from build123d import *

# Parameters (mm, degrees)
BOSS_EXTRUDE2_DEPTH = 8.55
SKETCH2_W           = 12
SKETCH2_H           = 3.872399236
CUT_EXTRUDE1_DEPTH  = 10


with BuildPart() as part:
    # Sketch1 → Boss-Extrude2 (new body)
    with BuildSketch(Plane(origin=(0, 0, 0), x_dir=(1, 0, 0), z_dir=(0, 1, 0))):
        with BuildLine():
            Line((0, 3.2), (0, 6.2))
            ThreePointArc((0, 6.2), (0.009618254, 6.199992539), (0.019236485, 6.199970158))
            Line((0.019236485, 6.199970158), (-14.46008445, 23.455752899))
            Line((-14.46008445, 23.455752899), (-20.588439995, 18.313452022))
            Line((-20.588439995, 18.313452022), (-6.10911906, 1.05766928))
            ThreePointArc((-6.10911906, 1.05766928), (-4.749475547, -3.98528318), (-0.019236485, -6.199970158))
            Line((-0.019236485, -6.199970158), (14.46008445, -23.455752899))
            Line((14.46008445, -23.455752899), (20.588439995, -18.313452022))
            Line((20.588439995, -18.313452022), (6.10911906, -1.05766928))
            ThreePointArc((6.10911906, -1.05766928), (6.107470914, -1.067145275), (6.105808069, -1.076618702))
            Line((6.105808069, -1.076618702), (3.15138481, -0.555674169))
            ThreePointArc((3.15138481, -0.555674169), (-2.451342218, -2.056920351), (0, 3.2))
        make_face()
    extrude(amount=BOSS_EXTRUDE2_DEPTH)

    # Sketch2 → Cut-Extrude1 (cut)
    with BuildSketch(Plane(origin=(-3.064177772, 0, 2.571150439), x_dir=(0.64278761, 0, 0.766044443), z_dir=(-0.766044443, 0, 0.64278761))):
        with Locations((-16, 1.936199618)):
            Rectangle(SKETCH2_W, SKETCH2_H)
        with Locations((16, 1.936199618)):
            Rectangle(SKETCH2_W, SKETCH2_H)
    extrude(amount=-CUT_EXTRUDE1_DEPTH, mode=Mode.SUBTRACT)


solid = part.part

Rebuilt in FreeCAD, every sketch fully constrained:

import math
import FreeCAD as App
import Part
import Sketcher

V = App.Vector
Q = App.Units.Quantity


def add_polygon(sketch, points):
    """Adds a closed chain of lines whose ends are joined by coincident constraints."""
    first, n = sketch.GeometryCount, len(points)
    for a, b in zip(points, points[1:] + points[:1]):
        sketch.addGeometry(Part.LineSegment(App.Vector(*a, 0), App.Vector(*b, 0)), False)
    for i in range(n):
        sketch.addConstraint(Sketcher.Constraint("Coincident", first + i, 2, first + (i + 1) % n, 1))

doc = App.newDocument("Part")
body = doc.addObject("PartDesign::Body", "Body")

sketch1 = doc.addObject("Sketcher::SketchObject", "Sketch")
body.addObject(sketch1)
sketch1.AttachmentSupport = (doc.XZ_Plane, [""])
sketch1.MapMode = "FlatFace"
sketch1.addGeometry(Part.LineSegment(V(0, -3.2, 0), V(0, -6.2, 0)), False)
sketch1.addGeometry(Part.ArcOfCircle(Part.Circle(V(-0.000001, 0.000453, 0), V(0, 0, 1), 6.200453), math.radians(-89.999994), math.radians(-89.822238)), False)
sketch1.addGeometry(Part.LineSegment(V(0.019236, -6.19997, 0), V(-14.460084, -23.455753, 0)), False)
sketch1.addGeometry(Part.LineSegment(V(-14.460084, -23.455753, 0), V(-20.58844, -18.313452, 0)), False)
sketch1.addGeometry(Part.LineSegment(V(-20.58844, -18.313452, 0), V(-6.109119, -1.057669, 0)), False)
sketch1.addGeometry(Part.ArcOfCircle(Part.Circle(V(0, 0, 0), V(0, 0, 1), 6.2), math.radians(90.17777), math.radians(189.82223)), False)
sketch1.addGeometry(Part.LineSegment(V(-0.019236, 6.19997, 0), V(14.460084, 23.455753, 0)), False)
sketch1.addGeometry(Part.LineSegment(V(14.460084, 23.455753, 0), V(20.58844, 18.313452, 0)), False)
sketch1.addGeometry(Part.LineSegment(V(20.58844, 18.313452, 0), V(6.109119, 1.057669, 0)), False)
sketch1.addGeometry(Part.ArcOfCircle(Part.Circle(V(0.000216, 0.000038, 0), V(0, 0, 1), 6.199781), math.radians(9.822225), math.radians(10.000001)), False)
sketch1.addGeometry(Part.LineSegment(V(6.105808, 1.076619, 0), V(3.151385, 0.555674, 0)), False)
sketch1.addGeometry(Part.ArcOfCircle(Part.Circle(V(0, 0, 0), V(0, 0, 1), 3.2), math.radians(10), math.radians(270)), False)
sketch1.addConstraint(Sketcher.Constraint("Coincident", 0, 2, 1, 1))
sketch1.addConstraint(Sketcher.Constraint("Coincident", 1, 2, 2, 1))
sketch1.addConstraint(Sketcher.Constraint("Coincident", 2, 2, 3, 1))
sketch1.addConstraint(Sketcher.Constraint("Coincident", 3, 2, 4, 1))
sketch1.addConstraint(Sketcher.Constraint("Coincident", 4, 2, 5, 2))
sketch1.addConstraint(Sketcher.Constraint("Coincident", 5, 1, 6, 1))
sketch1.addConstraint(Sketcher.Constraint("Coincident", 6, 2, 7, 1))
sketch1.addConstraint(Sketcher.Constraint("Coincident", 7, 2, 8, 1))
sketch1.addConstraint(Sketcher.Constraint("Coincident", 8, 2, 9, 1))
sketch1.addConstraint(Sketcher.Constraint("Coincident", 9, 2, 10, 1))
sketch1.addConstraint(Sketcher.Constraint("Coincident", 10, 2, 11, 1))
sketch1.addConstraint(Sketcher.Constraint("Coincident", 11, 2, 0, 1))
sketch1.addConstraint(Sketcher.Constraint("Vertical", 0))
sketch1.addConstraint(Sketcher.Constraint("Coincident", 5, 3, -1, 1))
sketch1.addConstraint(Sketcher.Constraint("Coincident", 11, 3, -1, 1))
sketch1.addConstraint(Sketcher.Constraint("Symmetric", 1, 2, 5, 1, -1, 1))
sketch1.addConstraint(Sketcher.Constraint("Symmetric", 2, 2, 6, 2, -1, 1))
sketch1.addConstraint(Sketcher.Constraint("Symmetric", 3, 2, 7, 2, -1, 1))
sketch1.addConstraint(Sketcher.Constraint("Symmetric", 4, 2, 8, 2, -1, 1))
sketch1.addConstraint(Sketcher.Constraint("PointOnObject", 1, 3, -2))
sketch1.addConstraint(Sketcher.Constraint("PointOnObject", 0, 2, -2))
sketch1.addConstraint(Sketcher.Constraint("Perpendicular", 2, 3))
sketch1.addConstraint(Sketcher.Constraint("Perpendicular", 3, 4))
sketch1.addConstraint(Sketcher.Constraint("Equal", 2, 4))
sketch1.addConstraint(Sketcher.Constraint("Radius", 5, 6.2))
sketch1.addConstraint(Sketcher.Constraint("Radius", 11, 3.2))
sketch1.addConstraint(Sketcher.Constraint("Angle", 2, Q("-130 deg")))
sketch1.addConstraint(Sketcher.Constraint("Angle", 10, Q("-170 deg")))
sketch1.addConstraint(Sketcher.Constraint("Distance", 3, 8.0))
sketch1.addConstraint(Sketcher.Constraint("Distance", 10, 3.0))
sketch1.addConstraint(Sketcher.Constraint("Radius", 9, 6.199781))
sketch1.addConstraint(Sketcher.Constraint("Radius", 1, 6.200453))
sketch1.addConstraint(Sketcher.Constraint("DistanceY", 1, 3, 7, 2, 18.312999))
sketch1.addConstraint(Sketcher.Constraint("DistanceX", -1, 1, 9, 2, 6.105808))
pad1 = doc.addObject("PartDesign::Pad", "Pad")
body.addObject(pad1)
pad1.Profile = sketch1
pad1.Length = 8.55
pad1.Reversed = True

sketch2 = doc.addObject("Sketcher::SketchObject", "Sketch001")
body.addObject(sketch2)
sketch2.Placement = App.Placement(V(-3.064178, 0, 2.57115), App.Rotation(V(0.64278761, 0, 0.766044443), V(0, 1, 0), V(-0.766044443, 0, 0.64278761), "ZXY"))
add_polygon(sketch2, [(-22, 3.872399), (-22, 0), (-10, 0), (-10, 3.872399)])
add_polygon(sketch2, [(10, 3.872399), (10, 0), (22, 0), (22, 3.872399)])
sketch2.addConstraint(Sketcher.Constraint("Vertical", 0))
sketch2.addConstraint(Sketcher.Constraint("Horizontal", 1))
sketch2.addConstraint(Sketcher.Constraint("Vertical", 2))
sketch2.addConstraint(Sketcher.Constraint("Horizontal", 3))
sketch2.addConstraint(Sketcher.Constraint("Vertical", 4))
sketch2.addConstraint(Sketcher.Constraint("Horizontal", 5))
sketch2.addConstraint(Sketcher.Constraint("Vertical", 6))
sketch2.addConstraint(Sketcher.Constraint("Horizontal", 7))
sketch2.addConstraint(Sketcher.Constraint("Symmetric", 1, 2, 4, 2, -1, 1))
sketch2.addConstraint(Sketcher.Constraint("Symmetric", 0, 2, 5, 2, -2))
sketch2.addConstraint(Sketcher.Constraint("Horizontal", 3, 2, 6, 2))
sketch2.addConstraint(Sketcher.Constraint("DistanceX", 1, 1, 1, 2, 12.0))
sketch2.addConstraint(Sketcher.Constraint("DistanceX", 0, 2, -1, 1, 22.0))
sketch2.addConstraint(Sketcher.Constraint("DistanceY", 0, 2, 0, 1, 3.872399))
pocket1 = doc.addObject("PartDesign::Pocket", "Pocket")
body.addObject(pocket1)
pocket1.Profile = sketch2
pocket1.Length = 10

doc.recompute()
